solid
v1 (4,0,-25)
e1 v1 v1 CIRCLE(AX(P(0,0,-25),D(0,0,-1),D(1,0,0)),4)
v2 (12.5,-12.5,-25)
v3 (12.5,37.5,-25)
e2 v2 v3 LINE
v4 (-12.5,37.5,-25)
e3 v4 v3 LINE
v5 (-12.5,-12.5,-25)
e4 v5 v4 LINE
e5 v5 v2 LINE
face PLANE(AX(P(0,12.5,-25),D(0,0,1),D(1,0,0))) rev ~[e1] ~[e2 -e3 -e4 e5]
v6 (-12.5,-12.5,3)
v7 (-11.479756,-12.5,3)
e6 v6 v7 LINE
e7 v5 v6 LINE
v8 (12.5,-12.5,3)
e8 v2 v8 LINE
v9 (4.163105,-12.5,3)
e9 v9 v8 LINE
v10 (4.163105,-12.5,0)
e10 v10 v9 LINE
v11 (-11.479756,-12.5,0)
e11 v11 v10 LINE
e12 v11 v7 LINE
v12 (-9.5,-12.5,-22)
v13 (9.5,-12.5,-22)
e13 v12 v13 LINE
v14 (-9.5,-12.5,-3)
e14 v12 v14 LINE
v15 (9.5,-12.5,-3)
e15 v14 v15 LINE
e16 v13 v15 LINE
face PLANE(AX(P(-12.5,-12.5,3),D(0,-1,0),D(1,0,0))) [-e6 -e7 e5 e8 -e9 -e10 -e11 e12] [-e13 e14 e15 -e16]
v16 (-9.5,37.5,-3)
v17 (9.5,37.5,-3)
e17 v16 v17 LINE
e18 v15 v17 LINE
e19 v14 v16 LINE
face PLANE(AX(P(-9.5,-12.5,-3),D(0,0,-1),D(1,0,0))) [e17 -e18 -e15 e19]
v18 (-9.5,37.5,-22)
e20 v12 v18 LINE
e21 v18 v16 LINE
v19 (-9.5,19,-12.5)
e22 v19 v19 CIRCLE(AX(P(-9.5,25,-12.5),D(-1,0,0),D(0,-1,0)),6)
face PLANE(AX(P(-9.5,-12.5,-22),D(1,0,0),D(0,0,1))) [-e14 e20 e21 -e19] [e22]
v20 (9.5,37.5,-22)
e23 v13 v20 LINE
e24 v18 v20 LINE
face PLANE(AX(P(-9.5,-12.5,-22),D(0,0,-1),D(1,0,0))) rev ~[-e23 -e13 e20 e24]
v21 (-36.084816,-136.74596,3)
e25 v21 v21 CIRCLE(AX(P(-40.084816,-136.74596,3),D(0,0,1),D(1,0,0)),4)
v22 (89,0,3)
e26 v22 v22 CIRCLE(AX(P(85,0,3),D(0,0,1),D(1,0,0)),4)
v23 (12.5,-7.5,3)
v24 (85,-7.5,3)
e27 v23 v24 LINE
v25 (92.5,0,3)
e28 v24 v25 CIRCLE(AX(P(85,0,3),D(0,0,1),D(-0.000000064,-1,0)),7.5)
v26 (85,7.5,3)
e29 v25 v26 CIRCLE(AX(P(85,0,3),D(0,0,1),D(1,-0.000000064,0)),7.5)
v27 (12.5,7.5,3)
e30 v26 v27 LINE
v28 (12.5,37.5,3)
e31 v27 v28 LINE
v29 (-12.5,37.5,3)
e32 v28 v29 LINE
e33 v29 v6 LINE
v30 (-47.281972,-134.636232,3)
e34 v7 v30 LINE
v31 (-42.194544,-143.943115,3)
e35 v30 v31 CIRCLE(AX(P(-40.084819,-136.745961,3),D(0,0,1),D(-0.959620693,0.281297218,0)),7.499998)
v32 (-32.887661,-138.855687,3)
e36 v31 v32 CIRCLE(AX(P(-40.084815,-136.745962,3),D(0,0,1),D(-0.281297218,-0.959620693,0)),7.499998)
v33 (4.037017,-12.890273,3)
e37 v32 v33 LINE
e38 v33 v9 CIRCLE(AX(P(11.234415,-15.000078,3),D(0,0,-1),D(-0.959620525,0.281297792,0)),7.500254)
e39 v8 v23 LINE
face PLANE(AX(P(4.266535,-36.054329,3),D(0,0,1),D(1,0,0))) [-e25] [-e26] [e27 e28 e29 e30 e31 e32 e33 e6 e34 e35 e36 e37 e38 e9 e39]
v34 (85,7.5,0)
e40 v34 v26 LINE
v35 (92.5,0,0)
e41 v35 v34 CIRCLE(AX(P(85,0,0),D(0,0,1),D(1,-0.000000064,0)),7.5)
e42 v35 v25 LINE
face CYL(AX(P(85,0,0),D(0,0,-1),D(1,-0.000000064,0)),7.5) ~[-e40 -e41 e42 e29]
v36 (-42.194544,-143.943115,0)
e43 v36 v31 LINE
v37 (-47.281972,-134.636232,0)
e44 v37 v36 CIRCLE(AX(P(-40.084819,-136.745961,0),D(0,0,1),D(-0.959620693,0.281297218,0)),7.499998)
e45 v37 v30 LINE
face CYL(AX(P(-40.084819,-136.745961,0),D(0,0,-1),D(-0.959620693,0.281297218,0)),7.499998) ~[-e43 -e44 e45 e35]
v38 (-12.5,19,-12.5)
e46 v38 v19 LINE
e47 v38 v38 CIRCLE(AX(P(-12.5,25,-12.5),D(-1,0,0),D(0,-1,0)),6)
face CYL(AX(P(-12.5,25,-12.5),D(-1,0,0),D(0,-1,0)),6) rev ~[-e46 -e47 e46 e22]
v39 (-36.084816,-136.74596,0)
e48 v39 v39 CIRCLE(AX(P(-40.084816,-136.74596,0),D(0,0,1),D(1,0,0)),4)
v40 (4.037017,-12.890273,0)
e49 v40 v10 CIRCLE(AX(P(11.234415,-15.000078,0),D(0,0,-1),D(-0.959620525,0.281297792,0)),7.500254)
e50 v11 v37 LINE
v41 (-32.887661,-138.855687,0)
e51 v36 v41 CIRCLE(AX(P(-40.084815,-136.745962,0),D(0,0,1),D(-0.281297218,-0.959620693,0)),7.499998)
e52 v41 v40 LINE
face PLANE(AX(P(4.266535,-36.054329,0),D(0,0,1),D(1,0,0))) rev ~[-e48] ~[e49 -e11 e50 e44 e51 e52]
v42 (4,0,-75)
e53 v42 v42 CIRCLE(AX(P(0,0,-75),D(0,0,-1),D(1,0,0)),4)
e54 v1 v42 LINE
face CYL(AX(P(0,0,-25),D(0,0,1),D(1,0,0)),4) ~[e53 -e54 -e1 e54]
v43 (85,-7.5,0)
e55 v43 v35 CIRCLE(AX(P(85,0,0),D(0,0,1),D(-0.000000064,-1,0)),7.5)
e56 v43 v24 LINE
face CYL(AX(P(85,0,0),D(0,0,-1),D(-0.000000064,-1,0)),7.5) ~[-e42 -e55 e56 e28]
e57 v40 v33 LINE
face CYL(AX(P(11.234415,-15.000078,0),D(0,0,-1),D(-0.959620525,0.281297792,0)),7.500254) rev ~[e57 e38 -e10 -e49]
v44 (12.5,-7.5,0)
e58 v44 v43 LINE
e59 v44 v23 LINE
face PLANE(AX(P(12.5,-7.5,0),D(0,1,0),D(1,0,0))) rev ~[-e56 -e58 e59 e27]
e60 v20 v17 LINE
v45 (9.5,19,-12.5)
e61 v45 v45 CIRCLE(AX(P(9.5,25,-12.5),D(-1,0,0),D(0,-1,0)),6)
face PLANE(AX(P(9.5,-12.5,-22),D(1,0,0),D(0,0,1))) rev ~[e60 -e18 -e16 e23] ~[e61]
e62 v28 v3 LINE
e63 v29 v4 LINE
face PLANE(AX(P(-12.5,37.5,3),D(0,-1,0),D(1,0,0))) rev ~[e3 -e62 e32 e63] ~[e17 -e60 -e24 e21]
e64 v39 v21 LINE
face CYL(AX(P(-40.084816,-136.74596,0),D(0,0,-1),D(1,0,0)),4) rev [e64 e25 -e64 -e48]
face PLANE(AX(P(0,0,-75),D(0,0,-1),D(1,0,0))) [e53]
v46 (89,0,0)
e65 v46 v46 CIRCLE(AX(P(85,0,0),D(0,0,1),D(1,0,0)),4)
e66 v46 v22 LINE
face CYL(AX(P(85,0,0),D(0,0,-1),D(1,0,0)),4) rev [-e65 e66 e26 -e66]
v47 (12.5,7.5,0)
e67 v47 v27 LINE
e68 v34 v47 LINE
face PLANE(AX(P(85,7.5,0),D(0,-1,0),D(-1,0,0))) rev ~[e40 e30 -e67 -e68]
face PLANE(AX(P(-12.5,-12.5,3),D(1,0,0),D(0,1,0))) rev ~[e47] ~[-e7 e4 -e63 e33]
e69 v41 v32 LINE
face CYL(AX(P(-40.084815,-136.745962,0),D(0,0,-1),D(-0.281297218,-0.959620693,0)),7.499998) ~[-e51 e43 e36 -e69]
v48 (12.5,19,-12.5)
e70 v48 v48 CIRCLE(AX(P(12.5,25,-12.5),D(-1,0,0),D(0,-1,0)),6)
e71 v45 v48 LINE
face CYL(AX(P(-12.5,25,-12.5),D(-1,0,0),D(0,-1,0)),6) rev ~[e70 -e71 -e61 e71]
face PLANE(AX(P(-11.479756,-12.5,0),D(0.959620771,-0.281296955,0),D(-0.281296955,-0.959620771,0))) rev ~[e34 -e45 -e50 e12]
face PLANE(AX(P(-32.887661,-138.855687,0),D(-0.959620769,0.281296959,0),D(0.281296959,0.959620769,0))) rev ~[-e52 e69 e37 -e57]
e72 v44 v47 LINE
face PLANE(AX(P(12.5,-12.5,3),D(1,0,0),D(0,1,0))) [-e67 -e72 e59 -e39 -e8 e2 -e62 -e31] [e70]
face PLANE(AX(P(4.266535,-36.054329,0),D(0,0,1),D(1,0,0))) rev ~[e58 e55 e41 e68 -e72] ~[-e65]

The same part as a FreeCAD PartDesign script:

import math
import FreeCAD as App
import Part
import Sketcher


def add_polygon(sketch, points):
    """Adds a closed chain of lines whose ends are joined by coincident constraints."""
    first, n = sketch.GeometryCount, len(points)
    for a, b in zip(points, points[1:] + points[:1]):
        sketch.addGeometry(Part.LineSegment(App.Vector(*a, 0), App.Vector(*b, 0)), False)
    for i in range(n):
        sketch.addConstraint(Sketcher.Constraint("Coincident", first + i, 2, first + (i + 1) % n, 1))

doc = App.newDocument("Part")
body = doc.addObject("PartDesign::Body", "Body")

# Sketch on XY plane
sketch1 = doc.addObject("Sketcher::SketchObject", "Sketch")
body.addObject(sketch1)
sketch1.AttachmentSupport = (doc.XY_Plane, [""])
sketch1.MapMode = "FlatFace"
sketch1.addGeometry(Part.LineSegment(App.Vector(85, 7.5, 0), App.Vector(12.5, 7.5, 0)), False)
sketch1.addGeometry(Part.LineSegment(App.Vector(12.5, 7.5, 0), App.Vector(12.5, 37.5, 0)), False)
sketch1.addGeometry(Part.LineSegment(App.Vector(12.5, 37.5, 0), App.Vector(-12.5, 37.5, 0)), False)
sketch1.addGeometry(Part.LineSegment(App.Vector(-12.5, 37.5, 0), App.Vector(-12.5, -12.5, 0)), False)
sketch1.addGeometry(Part.LineSegment(App.Vector(-12.5, -12.5, 0), App.Vector(-11.479756, -12.5, 0)), False)
sketch1.addGeometry(Part.LineSegment(App.Vector(-11.479756, -12.5, 0), App.Vector(-47.281972, -134.636232, 0)), False)
sketch1.addGeometry(Part.ArcOfCircle(Part.Circle(App.Vector(-40.084819, -136.745961, 0), App.Vector(0, 0, 1), 7.499998), math.radians(163.662358), math.radians(253.662383)), False)
sketch1.addGeometry(Part.ArcOfCircle(Part.Circle(App.Vector(-40.084815, -136.745962, 0), App.Vector(0, 0, 1), 7.499998), math.radians(-106.337642), math.radians(-16.337617)), False)
sketch1.addGeometry(Part.LineSegment(App.Vector(-32.887661, -138.855687, 0), App.Vector(4.037017, -12.890273, 0)), False)
sketch1.addGeometry(Part.ArcOfCircle(Part.Circle(App.Vector(11.234415, -15.000078, 0), App.Vector(0, 0, 1), 7.500254), math.radians(160.528834), math.radians(163.662324)), False)
sketch1.addGeometry(Part.LineSegment(App.Vector(4.163105, -12.5, 0), App.Vector(12.5, -12.5, 0)), False)
sketch1.addGeometry(Part.LineSegment(App.Vector(12.5, -12.5, 0), App.Vector(12.5, -7.5, 0)), False)
sketch1.addGeometry(Part.LineSegment(App.Vector(12.5, -7.5, 0), App.Vector(85, -7.5, 0)), False)
sketch1.addGeometry(Part.ArcOfCircle(Part.Circle(App.Vector(85, 0, 0), App.Vector(0, 0, 1), 7.5), math.radians(-90.000004), math.radians(0.000004)), False)
sketch1.addGeometry(Part.ArcOfCircle(Part.Circle(App.Vector(85, 0, 0), App.Vector(0, 0, 1), 7.5), math.radians(-0.000004), math.radians(90.000004)), False)
sketch1.addGeometry(Part.Circle(App.Vector(-40.084816, -136.74596, 0), App.Vector(0, 0, 1), 4), False)
sketch1.addGeometry(Part.Circle(App.Vector(85, 0, 0), App.Vector(0, 0, 1), 4), False)
sketch1.addConstraint(Sketcher.Constraint("Coincident", 0, 2, 1, 1))
sketch1.addConstraint(Sketcher.Constraint("Coincident", 1, 2, 2, 1))
sketch1.addConstraint(Sketcher.Constraint("Coincident", 2, 2, 3, 1))
sketch1.addConstraint(Sketcher.Constraint("Coincident", 3, 2, 4, 1))
sketch1.addConstraint(Sketcher.Constraint("Coincident", 4, 2, 5, 1))
sketch1.addConstraint(Sketcher.Constraint("Coincident", 5, 2, 6, 1))
sketch1.addConstraint(Sketcher.Constraint("Coincident", 6, 2, 7, 1))
sketch1.addConstraint(Sketcher.Constraint("Coincident", 7, 2, 8, 1))
sketch1.addConstraint(Sketcher.Constraint("Coincident", 8, 2, 9, 2))
sketch1.addConstraint(Sketcher.Constraint("Coincident", 9, 1, 10, 1))
sketch1.addConstraint(Sketcher.Constraint("Coincident", 10, 2, 11, 1))
sketch1.addConstraint(Sketcher.Constraint("Coincident", 11, 2, 12, 1))
sketch1.addConstraint(Sketcher.Constraint("Coincident", 12, 2, 13, 1))
sketch1.addConstraint(Sketcher.Constraint("Coincident", 13, 2, 14, 1))
sketch1.addConstraint(Sketcher.Constraint("Coincident", 14, 2, 0, 1))
sketch1.addConstraint(Sketcher.Constraint("Horizontal", 0))
sketch1.addConstraint(Sketcher.Constraint("Vertical", 1))
sketch1.addConstraint(Sketcher.Constraint("Horizontal", 2))
sketch1.addConstraint(Sketcher.Constraint("Vertical", 3))
sketch1.addConstraint(Sketcher.Constraint("Horizontal", 4))
sketch1.addConstraint(Sketcher.Constraint("Horizontal", 10))
sketch1.addConstraint(Sketcher.Constraint("Vertical", 11))
sketch1.addConstraint(Sketcher.Constraint("Horizontal", 12))
sketch1.addConstraint(Sketcher.Constraint("Coincident", 7, 3, 6, 3))
sketch1.addConstraint(Sketcher.Constraint("Coincident", 14, 3, 13, 3))
sketch1.addConstraint(Sketcher.Constraint("Coincident", 15, 3, 6, 3))
sketch1.addConstraint(Sketcher.Constraint("Coincident", 16, 3, 13, 3))
sketch1.addConstraint(Sketcher.Constraint("PointOnObject", 13, 3, -1))
sketch1.addConstraint(Sketcher.Constraint("PointOnObject", 13, 2, -1))
sketch1.addConstraint(Sketcher.Constraint("Diameter", 15, 8.0))
sketch1.addConstraint(Sketcher.Constraint("Diameter", 16, 8.0))
sketch1.addConstraint(Sketcher.Constraint("Radius", 6, 7.499998))
sketch1.addConstraint(Sketcher.Constraint("Radius", 13, 7.5))
sketch1.addConstraint(Sketcher.Constraint("DistanceX", 2, 2, 2, 1, 25.0))
sketch1.addConstraint(Sketcher.Constraint("DistanceY", 1, 1, 1, 2, 30.0))
sketch1.addConstraint(Sketcher.Constraint("DistanceY", 3, 2, 3, 1, 50.0))
sketch1.addConstraint(Sketcher.Constraint("DistanceY", 11, 1, 11, 2, 5.0))
sketch1.addConstraint(Sketcher.Constraint("DistanceX", 0, 2, 0, 1, 72.5))
sketch1.addConstraint(Sketcher.Constraint("DistanceX", 12, 1, 12, 2, 72.5))
sketch1.addConstraint(Sketcher.Constraint("DistanceX", -1, 1, 13, 3, 85.0))
sketch1.addConstraint(Sketcher.Constraint("DistanceX", -1, 1, 12, 2, 85.0))
sketch1.addConstraint(Sketcher.Constraint("DistanceX", -1, 1, 14, 2, 85.0))
sketch1.addConstraint(Sketcher.Constraint("Radius", 9, 7.500254))
sketch1.addConstraint(Sketcher.Constraint("DistanceX", 8, 2, 9, 3, 7.197398))
sketch1.addConstraint(Sketcher.Constraint("Distance", 5, 127.275519))
sketch1.addConstraint(Sketcher.Constraint("DistanceX", 4, 1, 4, 2, 1.020244))
sketch1.addConstraint(Sketcher.Constraint("DistanceX", 10, 1, 10, 2, 8.336895))
sketch1.addConstraint(Sketcher.Constraint("DistanceX", 6, 3, -1, 1, 40.084819))
sketch1.addConstraint(Sketcher.Constraint("DistanceY", 6, 3, -1, 1, 136.745961))
sketch1.addConstraint(Sketcher.Constraint("DistanceY", 9, 3, -1, 1, 15.000078))
sketch1.addConstraint(Sketcher.Constraint("DistanceX", 7, 2, -1, 1, 32.887661))
sketch1.addConstraint(Sketcher.Constraint("DistanceX", 6, 2, 7, 3, 2.109729))
pad1 = doc.addObject("PartDesign::Pad", "Pad")
body.addObject(pad1)
pad1.Profile = sketch1
pad1.Length = 3

# Sketch on XY plane
sketch2 = doc.addObject("Sketcher::SketchObject", "Sketch001")
body.addObject(sketch2)
sketch2.AttachmentSupport = (doc.XY_Plane, [""])
sketch2.MapMode = "FlatFace"
sketch2.AttachmentOffset = App.Placement(App.Vector(0, 0, 3), App.Rotation())
add_polygon(sketch2, [(-12.5, 37.5), (-12.5, -12.5), (12.5, -12.5), (12.5, 37.5)])  # lines 0-3
sketch2.addConstraint(Sketcher.Constraint("Vertical", 0))
sketch2.addConstraint(Sketcher.Constraint("Horizontal", 1))
sketch2.addConstraint(Sketcher.Constraint("Vertical", 2))
sketch2.addConstraint(Sketcher.Constraint("Horizontal", 3))
sketch2.addConstraint(Sketcher.Constraint("DistanceX", 1, 1, 1, 2, 25.0))
sketch2.addConstraint(Sketcher.Constraint("DistanceY", 0, 2, 0, 1, 50.0))
sketch2.addConstraint(Sketcher.Constraint("DistanceX", 0, 2, -1, 1, 12.5))
sketch2.addConstraint(Sketcher.Constraint("DistanceY", 0, 2, -1, 1, 12.5))
pad2 = doc.addObject("PartDesign::Pad", "Pad001")
body.addObject(pad2)
pad2.Profile = sketch2
pad2.Length = 28
pad2.Reversed = True

# Sketch on YZ plane
sketch3 = doc.addObject("Sketcher::SketchObject", "Sketch002")
body.addObject(sketch3)
sketch3.AttachmentSupport = (doc.YZ_Plane, [""])
sketch3.MapMode = "FlatFace"
sketch3.AttachmentOffset = App.Placement(App.Vector(0, 0, -12.5), App.Rotation())
sketch3.addGeometry(Part.Circle(App.Vector(25, -12.5, 0), App.Vector(0, 0, 1), 6), False)
sketch3.addConstraint(Sketcher.Constraint("Diameter", 0, 12.0))
sketch3.addConstraint(Sketcher.Constraint("DistanceX", -1, 1, 0, 3, 25.0))
sketch3.addConstraint(Sketcher.Constraint("DistanceY", 0, 3, -1, 1, 12.5))
pocket1 = doc.addObject("PartDesign::Pocket", "Pocket")
body.addObject(pocket1)
pocket1.Profile = sketch3
pocket1.Length = 25
pocket1.Reversed = True

# Sketch on XZ plane
sketch4 = doc.addObject("Sketcher::SketchObject", "Sketch003")
body.addObject(sketch4)
sketch4.AttachmentSupport = (doc.XZ_Plane, [""])
sketch4.MapMode = "FlatFace"
sketch4.AttachmentOffset = App.Placement(App.Vector(0, 0, 12.5), App.Rotation())
add_polygon(sketch4, [(-9.5, -3), (-9.5, -22), (9.5, -22), (9.5, -3)])  # lines 0-3
sketch4.addConstraint(Sketcher.Constraint("Vertical", 0))
sketch4.addConstraint(Sketcher.Constraint("Horizontal", 1))
sketch4.addConstraint(Sketcher.Constraint("Vertical", 2))
sketch4.addConstraint(Sketcher.Constraint("Horizontal", 3))
sketch4.addConstraint(Sketcher.Constraint("Equal", 3, 0))
sketch4.addConstraint(Sketcher.Constraint("DistanceX", 1, 1, 1, 2, 19.0))
sketch4.addConstraint(Sketcher.Constraint("DistanceY", 0, 2, -1, 1, 22.0))
sketch4.addConstraint(Sketcher.Constraint("DistanceX", 0, 2, -1, 1, 9.5))
pocket2 = doc.addObject("PartDesign::Pocket", "Pocket001")
body.addObject(pocket2)
pocket2.Profile = sketch4
pocket2.Length = 50

# Sketch on XY plane
sketch5 = doc.addObject("Sketcher::SketchObject", "Sketch004")
body.addObject(sketch5)
sketch5.AttachmentSupport = (doc.XY_Plane, [""])
sketch5.MapMode = "FlatFace"
sketch5.AttachmentOffset = App.Placement(App.Vector(0, 0, -25), App.Rotation())
sketch5.addGeometry(Part.Circle(App.Vector(0, 0, 0), App.Vector(0, 0, 1), 4), False)
sketch5.addConstraint(Sketcher.Constraint("Coincident", 0, 3, -1, 1))
sketch5.addConstraint(Sketcher.Constraint("Diameter", 0, 8.0))
pad3 = doc.addObject("PartDesign::Pad", "Pad002")
body.addObject(pad3)
pad3.Profile = sketch5
pad3.Length = 50
pad3.Reversed = True

doc.recompute()
